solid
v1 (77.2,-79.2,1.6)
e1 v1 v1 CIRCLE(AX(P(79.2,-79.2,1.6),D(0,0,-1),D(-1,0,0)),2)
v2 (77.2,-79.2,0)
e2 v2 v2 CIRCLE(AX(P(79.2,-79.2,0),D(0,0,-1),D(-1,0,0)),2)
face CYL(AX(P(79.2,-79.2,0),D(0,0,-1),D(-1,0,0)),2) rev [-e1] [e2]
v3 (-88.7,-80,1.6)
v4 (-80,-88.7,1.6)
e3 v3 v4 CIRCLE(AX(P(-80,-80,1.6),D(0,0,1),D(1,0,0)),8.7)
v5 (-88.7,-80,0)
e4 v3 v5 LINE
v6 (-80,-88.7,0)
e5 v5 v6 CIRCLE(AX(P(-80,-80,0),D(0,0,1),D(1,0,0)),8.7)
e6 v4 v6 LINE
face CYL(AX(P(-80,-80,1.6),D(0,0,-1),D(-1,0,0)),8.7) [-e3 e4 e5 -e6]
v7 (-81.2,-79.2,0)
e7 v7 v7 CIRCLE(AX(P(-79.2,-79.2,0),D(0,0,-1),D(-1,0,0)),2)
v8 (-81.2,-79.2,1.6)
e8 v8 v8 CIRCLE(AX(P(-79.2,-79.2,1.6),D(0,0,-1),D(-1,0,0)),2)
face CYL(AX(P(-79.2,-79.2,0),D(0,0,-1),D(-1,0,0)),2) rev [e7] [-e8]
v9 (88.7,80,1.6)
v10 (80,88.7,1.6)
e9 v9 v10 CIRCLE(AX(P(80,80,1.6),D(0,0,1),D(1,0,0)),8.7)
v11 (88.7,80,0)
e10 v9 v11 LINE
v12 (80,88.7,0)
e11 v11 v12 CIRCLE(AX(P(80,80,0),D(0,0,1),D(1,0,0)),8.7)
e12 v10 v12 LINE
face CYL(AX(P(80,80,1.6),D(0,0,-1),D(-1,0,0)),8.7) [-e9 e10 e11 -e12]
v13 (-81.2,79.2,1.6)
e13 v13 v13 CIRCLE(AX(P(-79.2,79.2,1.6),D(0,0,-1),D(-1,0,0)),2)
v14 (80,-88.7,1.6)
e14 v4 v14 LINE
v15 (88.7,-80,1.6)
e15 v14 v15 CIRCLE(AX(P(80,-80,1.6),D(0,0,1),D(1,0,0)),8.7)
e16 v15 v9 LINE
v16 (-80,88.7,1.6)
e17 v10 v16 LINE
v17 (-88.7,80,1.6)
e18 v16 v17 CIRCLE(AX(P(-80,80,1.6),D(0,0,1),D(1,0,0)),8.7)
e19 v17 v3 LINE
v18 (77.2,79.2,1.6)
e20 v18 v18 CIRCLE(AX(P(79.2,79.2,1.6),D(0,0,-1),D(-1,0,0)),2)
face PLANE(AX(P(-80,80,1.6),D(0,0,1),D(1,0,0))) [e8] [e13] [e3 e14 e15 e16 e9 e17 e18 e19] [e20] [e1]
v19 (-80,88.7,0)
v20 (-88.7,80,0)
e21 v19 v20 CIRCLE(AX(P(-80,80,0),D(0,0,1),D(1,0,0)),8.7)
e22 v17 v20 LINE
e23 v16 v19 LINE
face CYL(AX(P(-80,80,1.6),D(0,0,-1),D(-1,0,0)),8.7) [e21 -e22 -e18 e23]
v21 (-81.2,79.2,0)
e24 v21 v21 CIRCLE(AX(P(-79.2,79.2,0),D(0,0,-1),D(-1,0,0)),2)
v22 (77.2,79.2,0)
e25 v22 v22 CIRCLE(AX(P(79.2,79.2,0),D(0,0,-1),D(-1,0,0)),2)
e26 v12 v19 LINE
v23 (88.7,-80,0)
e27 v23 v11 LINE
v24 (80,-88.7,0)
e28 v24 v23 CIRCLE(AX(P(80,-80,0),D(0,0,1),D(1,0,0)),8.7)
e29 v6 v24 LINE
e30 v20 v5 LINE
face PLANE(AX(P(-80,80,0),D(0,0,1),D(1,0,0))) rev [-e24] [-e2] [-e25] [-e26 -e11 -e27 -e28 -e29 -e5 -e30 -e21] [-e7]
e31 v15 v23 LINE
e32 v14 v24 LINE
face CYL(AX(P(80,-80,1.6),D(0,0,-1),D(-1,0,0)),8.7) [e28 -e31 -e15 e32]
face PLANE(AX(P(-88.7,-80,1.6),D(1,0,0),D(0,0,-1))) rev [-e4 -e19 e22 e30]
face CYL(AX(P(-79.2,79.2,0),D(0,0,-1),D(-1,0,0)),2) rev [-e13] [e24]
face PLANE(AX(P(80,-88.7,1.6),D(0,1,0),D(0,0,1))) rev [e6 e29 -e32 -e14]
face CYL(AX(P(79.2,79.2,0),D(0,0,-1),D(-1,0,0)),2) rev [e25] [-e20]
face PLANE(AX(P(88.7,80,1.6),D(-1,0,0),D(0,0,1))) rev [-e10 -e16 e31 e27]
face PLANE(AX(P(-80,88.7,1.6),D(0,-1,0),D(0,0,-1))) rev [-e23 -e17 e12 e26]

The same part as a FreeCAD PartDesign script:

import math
import FreeCAD as App
import Part
import Sketcher
Q = App.Units.Quantity

doc = App.newDocument("Part")
body = doc.addObject("PartDesign::Body", "Body")

# Sketch on XY plane
sketch1 = body.newObject("Sketcher::SketchObject", "Sketch")
sketch1.AttachmentSupport = (doc.getObject("XY_Plane"), [""])
sketch1.MapMode = "FlatFace"
sketch1.addGeometry([
    Part.LineSegment(App.Vector(80, 88.7, 0), App.Vector(-80, 88.7, 0)),  # 0
    Part.ArcOfCircle(Part.Circle(App.Vector(-80, 80, 0), App.Vector(0, 0, 1), 8.7), math.radians(90), math.radians(180)),  # 1
    Part.LineSegment(App.Vector(-88.7, 80, 0), App.Vector(-88.7, -80, 0)),  # 2
    Part.ArcOfCircle(Part.Circle(App.Vector(-80, -80, 0), App.Vector(0, 0, 1), 8.7), math.radians(-180), math.radians(-90)),  # 3
    Part.LineSegment(App.Vector(-80, -88.7, 0), App.Vector(80, -88.7, 0)),  # 4
    Part.ArcOfCircle(Part.Circle(App.Vector(80, -80, 0), App.Vector(0, 0, 1), 8.7), math.radians(-90), math.radians(0)),  # 5
    Part.LineSegment(App.Vector(88.7, -80, 0), App.Vector(88.7, 80, 0)),  # 6
    Part.ArcOfCircle(Part.Circle(App.Vector(80, 80, 0), App.Vector(0, 0, 1), 8.7), math.radians(0), math.radians(90)),  # 7
], False)
sketch1.addConstraint([
    Sketcher.Constraint("Tangent", 0, 2, 1, 1),
    Sketcher.Constraint("Tangent", 1, 2, 2, 1),
    Sketcher.Constraint("Tangent", 2, 2, 3, 1),
    Sketcher.Constraint("Tangent", 3, 2, 4, 1),
    Sketcher.Constraint("Tangent", 4, 2, 5, 1),
    Sketcher.Constraint("Tangent", 5, 2, 6, 1),
    Sketcher.Constraint("Tangent", 6, 2, 7, 1),
    Sketcher.Constraint("Tangent", 7, 2, 0, 1),
    Sketcher.Constraint("Horizontal", 0),
    Sketcher.Constraint("Vertical", 2),
    Sketcher.Constraint("Horizontal", 4),
    Sketcher.Constraint("Vertical", 6),
    Sketcher.Constraint("Equal", 1, 3),
    Sketcher.Constraint("Equal", 3, 5),
    Sketcher.Constraint("Equal", 5, 7),
    Sketcher.Constraint("Symmetric", 1, 3, 5, 3, -1, 1),
    Sketcher.Constraint("Equal", 4, 2),
    Sketcher.Constraint("Radius", 1, Q("8.7 mm")),
    Sketcher.Constraint("DistanceX", 0, 2, 0, 1, Q("160 mm")),
])
pad1 = body.newObject("PartDesign::Pad", "Pad")
pad1.Profile = sketch1
pad1.Length = 1.6

# Sketch on XY plane
sketch2 = body.newObject("Sketcher::SketchObject", "Sketch001")
sketch2.AttachmentSupport = (doc.getObject("XY_Plane"), [""])
sketch2.MapMode = "FlatFace"
sketch2.addGeometry([
    Part.Circle(App.Vector(79.2, 79.2, 0), App.Vector(0, 0, 1), 2),
    Part.Circle(App.Vector(-79.2, 79.2, 0), App.Vector(0, 0, 1), 2),
    Part.Circle(App.Vector(79.2, -79.2, 0), App.Vector(0, 0, 1), 2),
    Part.Circle(App.Vector(-79.2, -79.2, 0), App.Vector(0, 0, 1), 2),
], False)
sketch2.addConstraint([
    Sketcher.Constraint("Equal", 0, 1),
    Sketcher.Constraint("Equal", 1, 2),
    Sketcher.Constraint("Equal", 2, 3),
    Sketcher.Constraint("Symmetric", 1, 3, 2, 3, -1, 1),
    Sketcher.Constraint("Symmetric", 0, 3, 3, 3, -1, 1),
    Sketcher.Constraint("Symmetric", 0, 3, 1, 3, -2),
    Sketcher.Constraint("Diameter", 0, Q("4 mm")),
    Sketcher.Constraint("DistanceX", -1, 1, 0, 3, Q("79.2 mm")),
    Sketcher.Constraint("DistanceY", -1, 1, 0, 3, Q("79.2 mm")),
])
doc.recompute()
hole = body.newObject("PartDesign::Hole", "Hole")
hole.Profile = sketch2
hole.ThreadType = "None"
hole.Diameter = 4
hole.DepthType = "ThroughAll"
hole.Reversed = True

doc.recompute()
